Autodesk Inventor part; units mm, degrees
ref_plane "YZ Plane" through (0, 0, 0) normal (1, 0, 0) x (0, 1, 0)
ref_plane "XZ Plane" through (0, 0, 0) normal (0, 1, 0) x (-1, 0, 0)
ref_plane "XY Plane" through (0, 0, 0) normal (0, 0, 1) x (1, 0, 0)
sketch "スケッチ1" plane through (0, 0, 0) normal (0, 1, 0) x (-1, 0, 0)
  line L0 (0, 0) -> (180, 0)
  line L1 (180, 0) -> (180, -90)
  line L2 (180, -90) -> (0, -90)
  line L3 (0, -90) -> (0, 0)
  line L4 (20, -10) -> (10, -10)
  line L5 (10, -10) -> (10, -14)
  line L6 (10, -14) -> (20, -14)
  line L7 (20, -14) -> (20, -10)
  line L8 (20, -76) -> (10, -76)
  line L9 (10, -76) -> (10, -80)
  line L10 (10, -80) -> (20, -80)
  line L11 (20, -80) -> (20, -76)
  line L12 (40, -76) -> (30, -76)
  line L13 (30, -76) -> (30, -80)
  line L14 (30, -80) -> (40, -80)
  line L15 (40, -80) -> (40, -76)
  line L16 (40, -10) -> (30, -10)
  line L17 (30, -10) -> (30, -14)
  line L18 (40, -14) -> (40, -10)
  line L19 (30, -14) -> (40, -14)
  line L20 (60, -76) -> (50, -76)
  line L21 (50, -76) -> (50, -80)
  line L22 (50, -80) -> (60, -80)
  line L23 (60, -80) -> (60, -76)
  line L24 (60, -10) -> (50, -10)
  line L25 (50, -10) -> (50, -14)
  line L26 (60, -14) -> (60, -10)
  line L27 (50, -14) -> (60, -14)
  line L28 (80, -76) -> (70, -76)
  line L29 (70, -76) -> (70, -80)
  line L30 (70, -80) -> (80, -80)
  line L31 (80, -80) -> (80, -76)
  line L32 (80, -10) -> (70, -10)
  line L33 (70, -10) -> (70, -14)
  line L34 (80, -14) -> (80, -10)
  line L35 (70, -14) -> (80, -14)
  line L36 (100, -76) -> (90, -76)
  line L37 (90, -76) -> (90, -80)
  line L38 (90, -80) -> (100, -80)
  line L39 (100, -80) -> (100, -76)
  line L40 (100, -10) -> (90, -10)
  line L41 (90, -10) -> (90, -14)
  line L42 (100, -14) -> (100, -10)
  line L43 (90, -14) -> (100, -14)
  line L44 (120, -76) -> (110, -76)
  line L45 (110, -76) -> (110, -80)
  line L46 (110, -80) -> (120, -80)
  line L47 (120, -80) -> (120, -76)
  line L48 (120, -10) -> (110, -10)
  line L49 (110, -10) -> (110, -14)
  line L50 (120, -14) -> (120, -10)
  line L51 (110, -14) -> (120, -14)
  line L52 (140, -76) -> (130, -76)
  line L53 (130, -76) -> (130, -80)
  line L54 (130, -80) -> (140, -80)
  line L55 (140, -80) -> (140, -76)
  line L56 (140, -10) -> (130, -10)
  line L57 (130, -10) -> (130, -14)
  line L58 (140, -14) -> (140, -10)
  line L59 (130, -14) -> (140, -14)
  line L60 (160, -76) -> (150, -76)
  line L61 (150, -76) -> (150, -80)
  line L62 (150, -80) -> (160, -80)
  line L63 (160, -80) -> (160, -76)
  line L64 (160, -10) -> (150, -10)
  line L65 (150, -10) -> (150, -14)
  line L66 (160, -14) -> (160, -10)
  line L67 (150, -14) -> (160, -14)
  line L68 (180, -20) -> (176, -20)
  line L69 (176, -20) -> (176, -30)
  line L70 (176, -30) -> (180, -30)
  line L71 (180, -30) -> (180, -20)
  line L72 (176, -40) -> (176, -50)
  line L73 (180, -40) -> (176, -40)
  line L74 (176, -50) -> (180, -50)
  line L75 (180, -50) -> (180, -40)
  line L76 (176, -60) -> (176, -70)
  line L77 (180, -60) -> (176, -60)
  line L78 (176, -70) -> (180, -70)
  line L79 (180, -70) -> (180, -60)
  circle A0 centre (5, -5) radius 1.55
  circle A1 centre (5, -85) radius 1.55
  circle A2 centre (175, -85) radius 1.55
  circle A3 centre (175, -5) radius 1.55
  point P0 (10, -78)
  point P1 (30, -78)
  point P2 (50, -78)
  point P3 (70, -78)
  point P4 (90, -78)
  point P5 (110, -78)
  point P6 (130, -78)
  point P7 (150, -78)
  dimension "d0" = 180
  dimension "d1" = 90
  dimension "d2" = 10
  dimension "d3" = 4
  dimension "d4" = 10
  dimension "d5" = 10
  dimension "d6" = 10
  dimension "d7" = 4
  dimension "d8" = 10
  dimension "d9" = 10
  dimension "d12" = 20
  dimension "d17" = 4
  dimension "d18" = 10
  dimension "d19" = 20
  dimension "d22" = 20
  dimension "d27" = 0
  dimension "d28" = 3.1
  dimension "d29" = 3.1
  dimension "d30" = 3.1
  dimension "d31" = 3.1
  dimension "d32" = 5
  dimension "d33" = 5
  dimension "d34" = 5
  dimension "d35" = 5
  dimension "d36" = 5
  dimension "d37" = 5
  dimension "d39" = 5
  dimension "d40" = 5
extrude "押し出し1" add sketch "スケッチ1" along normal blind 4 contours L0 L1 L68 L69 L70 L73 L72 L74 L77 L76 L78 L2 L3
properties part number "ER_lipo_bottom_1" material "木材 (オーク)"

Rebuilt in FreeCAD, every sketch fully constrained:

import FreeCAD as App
import Part
import Sketcher

V = App.Vector

doc = App.newDocument("Part")
body = doc.addObject("PartDesign::Body", "Body")

# Sketch on XZ plane
sketch1 = body.newObject("Sketcher::SketchObject", "Sketch")
sketch1.AttachmentSupport = (doc.getObject("XZ_Plane"), [""])
sketch1.MapMode = "FlatFace"
sketch1.addGeometry([
    Part.LineSegment(V(-180, 0, 0), V(0, 0, 0)),  # 0
    Part.LineSegment(V(0, 0, 0), V(0, -90, 0)),  # 1
    Part.LineSegment(V(0, -90, 0), V(-180, -90, 0)),  # 2
    Part.LineSegment(V(-180, -90, 0), V(-180, -70, 0)),  # 3
    Part.LineSegment(V(-180, -70, 0), V(-176, -70, 0)),  # 4
    Part.LineSegment(V(-176, -70, 0), V(-176, -60, 0)),  # 5
    Part.LineSegment(V(-176, -60, 0), V(-180, -60, 0)),  # 6
    Part.LineSegment(V(-180, -60, 0), V(-180, -50, 0)),  # 7
    Part.LineSegment(V(-180, -50, 0), V(-176, -50, 0)),  # 8
    Part.LineSegment(V(-176, -50, 0), V(-176, -40, 0)),  # 9
    Part.LineSegment(V(-176, -40, 0), V(-180, -40, 0)),  # 10
    Part.LineSegment(V(-180, -40, 0), V(-180, -30, 0)),  # 11
    Part.LineSegment(V(-180, -30, 0), V(-176, -30, 0)),  # 12
    Part.LineSegment(V(-176, -30, 0), V(-176, -20, 0)),  # 13
    Part.LineSegment(V(-176, -20, 0), V(-180, -20, 0)),  # 14
    Part.LineSegment(V(-180, -20, 0), V(-180, 0, 0)),  # 15
    Part.Circle(V(-5, -85, 0), V(0, 0, 1), 1.55),  # 16
    Part.LineSegment(V(-10, -76, 0), V(-20, -76, 0)),  # 17
    Part.LineSegment(V(-20, -76, 0), V(-20, -80, 0)),  # 18
    Part.LineSegment(V(-20, -80, 0), V(-10, -80, 0)),  # 19
    Part.LineSegment(V(-10, -80, 0), V(-10, -76, 0)),  # 20
    Part.LineSegment(V(-30, -76, 0), V(-40, -76, 0)),  # 21
    Part.LineSegment(V(-40, -76, 0), V(-40, -80, 0)),  # 22
    Part.LineSegment(V(-40, -80, 0), V(-30, -80, 0)),  # 23
    Part.LineSegment(V(-30, -80, 0), V(-30, -76, 0)),  # 24
    Part.LineSegment(V(-50, -76, 0), V(-60, -76, 0)),  # 25
    Part.LineSegment(V(-60, -76, 0), V(-60, -80, 0)),  # 26
    Part.LineSegment(V(-60, -80, 0), V(-50, -80, 0)),  # 27
    Part.LineSegment(V(-50, -80, 0), V(-50, -76, 0)),  # 28
    Part.LineSegment(V(-70, -76, 0), V(-80, -76, 0)),  # 29
    Part.LineSegment(V(-80, -76, 0), V(-80, -80, 0)),  # 30
    Part.LineSegment(V(-80, -80, 0), V(-70, -80, 0)),  # 31
    Part.LineSegment(V(-70, -80, 0), V(-70, -76, 0)),  # 32
    Part.LineSegment(V(-90, -76, 0), V(-100, -76, 0)),  # 33
    Part.LineSegment(V(-100, -76, 0), V(-100, -80, 0)),  # 34
    Part.LineSegment(V(-100, -80, 0), V(-90, -80, 0)),  # 35
    Part.LineSegment(V(-90, -80, 0), V(-90, -76, 0)),  # 36
    Part.LineSegment(V(-110, -76, 0), V(-120, -76, 0)),  # 37
    Part.LineSegment(V(-120, -76, 0), V(-120, -80, 0)),  # 38
    Part.LineSegment(V(-120, -80, 0), V(-110, -80, 0)),  # 39
    Part.LineSegment(V(-110, -80, 0), V(-110, -76, 0)),  # 40
    Part.Circle(V(-175, -85, 0), V(0, 0, 1), 1.55),  # 41
    Part.LineSegment(V(-130, -76, 0), V(-140, -76, 0)),  # 42
    Part.LineSegment(V(-140, -76, 0), V(-140, -80, 0)),  # 43
    Part.LineSegment(V(-140, -80, 0), V(-130, -80, 0)),  # 44
    Part.LineSegment(V(-130, -80, 0), V(-130, -76, 0)),  # 45
    Part.LineSegment(V(-150, -76, 0), V(-160, -76, 0)),  # 46
    Part.LineSegment(V(-160, -76, 0), V(-160, -80, 0)),  # 47
    Part.LineSegment(V(-160, -80, 0), V(-150, -80, 0)),  # 48
    Part.LineSegment(V(-150, -80, 0), V(-150, -76, 0)),  # 49
    Part.LineSegment(V(-10, -10, 0), V(-20, -10, 0)),  # 50
    Part.LineSegment(V(-20, -10, 0), V(-20, -14, 0)),  # 51
    Part.LineSegment(V(-20, -14, 0), V(-10, -14, 0)),  # 52
    Part.LineSegment(V(-10, -14, 0), V(-10, -10, 0)),  # 53
    Part.LineSegment(V(-30, -10, 0), V(-40, -10, 0)),  # 54
    Part.LineSegment(V(-40, -10, 0), V(-40, -14, 0)),  # 55
    Part.LineSegment(V(-40, -14, 0), V(-30, -14, 0)),  # 56
    Part.LineSegment(V(-30, -14, 0), V(-30, -10, 0)),  # 57
    Part.Circle(V(-5, -5, 0), V(0, 0, 1), 1.55),  # 58
    Part.LineSegment(V(-50, -10, 0), V(-60, -10, 0)),  # 59
    Part.LineSegment(V(-60, -10, 0), V(-60, -14, 0)),  # 60
    Part.LineSegment(V(-60, -14, 0), V(-50, -14, 0)),  # 61
    Part.LineSegment(V(-50, -14, 0), V(-50, -10, 0)),  # 62
    Part.LineSegment(V(-70, -10, 0), V(-80, -10, 0)),  # 63
    Part.LineSegment(V(-80, -10, 0), V(-80, -14, 0)),  # 64
    Part.LineSegment(V(-80, -14, 0), V(-70, -14, 0)),  # 65
    Part.LineSegment(V(-70, -14, 0), V(-70, -10, 0)),  # 66
    Part.LineSegment(V(-90, -10, 0), V(-100, -10, 0)),  # 67
    Part.LineSegment(V(-100, -10, 0), V(-100, -14, 0)),  # 68
    Part.LineSegment(V(-100, -14, 0), V(-90, -14, 0)),  # 69
    Part.LineSegment(V(-90, -14, 0), V(-90, -10, 0)),  # 70
    Part.LineSegment(V(-110, -10, 0), V(-120, -10, 0)),  # 71
    Part.LineSegment(V(-120, -10, 0), V(-120, -14, 0)),  # 72
    Part.LineSegment(V(-120, -14, 0), V(-110, -14, 0)),  # 73
    Part.LineSegment(V(-110, -14, 0), V(-110, -10, 0)),  # 74
    Part.LineSegment(V(-130, -10, 0), V(-140, -10, 0)),  # 75
    Part.LineSegment(V(-140, -10, 0), V(-140, -14, 0)),  # 76
    Part.LineSegment(V(-140, -14, 0), V(-130, -14, 0)),  # 77
    Part.LineSegment(V(-130, -14, 0), V(-130, -10, 0)),  # 78
    Part.LineSegment(V(-150, -10, 0), V(-160, -10, 0)),  # 79
    Part.LineSegment(V(-160, -10, 0), V(-160, -14, 0)),  # 80
    Part.LineSegment(V(-160, -14, 0), V(-150, -14, 0)),  # 81
    Part.LineSegment(V(-150, -14, 0), V(-150, -10, 0)),  # 82
    Part.Circle(V(-175, -5, 0), V(0, 0, 1), 1.55),  # 83
], False)
sketch1.addConstraint([
    Sketcher.Constraint("Coincident", 0, 2, 1, 1),
    Sketcher.Constraint("Coincident", 1, 2, 2, 1),
    Sketcher.Constraint("Coincident", 2, 2, 3, 1),
    Sketcher.Constraint("Coincident", 3, 2, 4, 1),
    Sketcher.Constraint("Coincident", 4, 2, 5, 1),
    Sketcher.Constraint("Coincident", 5, 2, 6, 1),
    Sketcher.Constraint("Coincident", 6, 2, 7, 1),
    Sketcher.Constraint("Coincident", 7, 2, 8, 1),
    Sketcher.Constraint("Coincident", 8, 2, 9, 1),
    Sketcher.Constraint("Coincident", 9, 2, 10, 1),
    Sketcher.Constraint("Coincident", 10, 2, 11, 1),
    Sketcher.Constraint("Coincident", 11, 2, 12, 1),
    Sketcher.Constraint("Coincident", 12, 2, 13, 1),
    Sketcher.Constraint("Coincident", 13, 2, 14, 1),
    Sketcher.Constraint("Coincident", 14, 2, 15, 1),
    Sketcher.Constraint("Coincident", 15, 2, 0, 1),
    Sketcher.Constraint("Coincident", 17, 2, 18, 1),
    Sketcher.Constraint("Coincident", 18, 2, 19, 1),
    Sketcher.Constraint("Coincident", 19, 2, 20, 1),
    Sketcher.Constraint("Coincident", 20, 2, 17, 1),
    Sketcher.Constraint("Coincident", 21, 2, 22, 1),
    Sketcher.Constraint("Coincident", 22, 2, 23, 1),
    Sketcher.Constraint("Coincident", 23, 2, 24, 1),
    Sketcher.Constraint("Coincident", 24, 2, 21, 1),
    Sketcher.Constraint("Coincident", 25, 2, 26, 1),
    Sketcher.Constraint("Coincident", 26, 2, 27, 1),
    Sketcher.Constraint("Coincident", 27, 2, 28, 1),
    Sketcher.Constraint("Coincident", 28, 2, 25, 1),
    Sketcher.Constraint("Coincident", 29, 2, 30, 1),
    Sketcher.Constraint("Coincident", 30, 2, 31, 1),
    Sketcher.Constraint("Coincident", 31, 2, 32, 1),
    Sketcher.Constraint("Coincident", 32, 2, 29, 1),
    Sketcher.Constraint("Coincident", 33, 2, 34, 1),
    Sketcher.Constraint("Coincident", 34, 2, 35, 1),
    Sketcher.Constraint("Coincident", 35, 2, 36, 1),
    Sketcher.Constraint("Coincident", 36, 2, 33, 1),
    Sketcher.Constraint("Coincident", 37, 2, 38, 1),
    Sketcher.Constraint("Coincident", 38, 2, 39, 1),
    Sketcher.Constraint("Coincident", 39, 2, 40, 1),
    Sketcher.Constraint("Coincident", 40, 2, 37, 1),
    Sketcher.Constraint("Coincident", 42, 2, 43, 1),
    Sketcher.Constraint("Coincident", 43, 2, 44, 1),
    Sketcher.Constraint("Coincident", 44, 2, 45, 1),
    Sketcher.Constraint("Coincident", 45, 2, 42, 1),
    Sketcher.Constraint("Coincident", 46, 2, 47, 1),
    Sketcher.Constraint("Coincident", 47, 2, 48, 1),
    Sketcher.Constraint("Coincident", 48, 2, 49, 1),
    Sketcher.Constraint("Coincident", 49, 2, 46, 1),
    Sketcher.Constraint("Coincident", 50, 2, 51, 1),
    Sketcher.Constraint("Coincident", 51, 2, 52, 1),
    Sketcher.Constraint("Coincident", 52, 2, 53, 1),
    Sketcher.Constraint("Coincident", 53, 2, 50, 1),
    Sketcher.Constraint("Coincident", 54, 2, 55, 1),
    Sketcher.Constraint("Coincident", 55, 2, 56, 1),
    Sketcher.Constraint("Coincident", 56, 2, 57, 1),
    Sketcher.Constraint("Coincident", 57, 2, 54, 1),
    Sketcher.Constraint("Coincident", 59, 2, 60, 1),
    Sketcher.Constraint("Coincident", 60, 2, 61, 1),
    Sketcher.Constraint("Coincident", 61, 2, 62, 1),
    Sketcher.Constraint("Coincident", 62, 2, 59, 1),
    Sketcher.Constraint("Coincident", 63, 2, 64, 1),
    Sketcher.Constraint("Coincident", 64, 2, 65, 1),
    Sketcher.Constraint("Coincident", 65, 2, 66, 1),
    Sketcher.Constraint("Coincident", 66, 2, 63, 1),
    Sketcher.Constraint("Coincident", 67, 2, 68, 1),
    Sketcher.Constraint("Coincident", 68, 2, 69, 1),
    Sketcher.Constraint("Coincident", 69, 2, 70, 1),
    Sketcher.Constraint("Coincident", 70, 2, 67, 1),
    Sketcher.Constraint("Coincident", 71, 2, 72, 1),
    Sketcher.Constraint("Coincident", 72, 2, 73, 1),
    Sketcher.Constraint("Coincident", 73, 2, 74, 1),
    Sketcher.Constraint("Coincident", 74, 2, 71, 1),
    Sketcher.Constraint("Coincident", 75, 2, 76, 1),
    Sketcher.Constraint("Coincident", 76, 2, 77, 1),
    Sketcher.Constraint("Coincident", 77, 2, 78, 1),
    Sketcher.Constraint("Coincident", 78, 2, 75, 1),
    Sketcher.Constraint("Coincident", 79, 2, 80, 1),
    Sketcher.Constraint("Coincident", 80, 2, 81, 1),
    Sketcher.Constraint("Coincident", 81, 2, 82, 1),
    Sketcher.Constraint("Coincident", 82, 2, 79, 1),
    Sketcher.Constraint("Horizontal", 0),
    Sketcher.Constraint("Vertical", 1),
    Sketcher.Constraint("Horizontal", 2),
    Sketcher.Constraint("Vertical", 3),
    Sketcher.Constraint("Horizontal", 4),
    Sketcher.Constraint("Vertical", 5),
    Sketcher.Constraint("Horizontal", 6),
    Sketcher.Constraint("Vertical", 7),
    Sketcher.Constraint("Horizontal", 8),
    Sketcher.Constraint("Vertical", 9),
    Sketcher.Constraint("Horizontal", 10),
    Sketcher.Constraint("Vertical", 11),
    Sketcher.Constraint("Horizontal", 12),
    Sketcher.Constraint("Vertical", 13),
    Sketcher.Constraint("Horizontal", 14),
    Sketcher.Constraint("Vertical", 15),
    Sketcher.Constraint("Horizontal", 17),
    Sketcher.Constraint("Vertical", 18),
    Sketcher.Constraint("Horizontal", 19),
    Sketcher.Constraint("Vertical", 20),
    Sketcher.Constraint("Horizontal", 21),
    Sketcher.Constraint("Vertical", 22),
    Sketcher.Constraint("Horizontal", 23),
    Sketcher.Constraint("Vertical", 24),
    Sketcher.Constraint("Horizontal", 25),
    Sketcher.Constraint("Vertical", 26),
    Sketcher.Constraint("Horizontal", 27),
    Sketcher.Constraint("Vertical", 28),
    Sketcher.Constraint("Horizontal", 29),
    Sketcher.Constraint("Vertical", 30),
    Sketcher.Constraint("Horizontal", 31),
    Sketcher.Constraint("Vertical", 32),
    Sketcher.Constraint("Horizontal", 33),
    Sketcher.Constraint("Vertical", 34),
    Sketcher.Constraint("Horizontal", 35),
    Sketcher.Constraint("Vertical", 36),
    Sketcher.Constraint("Horizontal", 37),
    Sketcher.Constraint("Vertical", 38),
    Sketcher.Constraint("Horizontal", 39),
    Sketcher.Constraint("Vertical", 40),
    Sketcher.Constraint("Horizontal", 42),
    Sketcher.Constraint("Vertical", 43),
    Sketcher.Constraint("Horizontal", 44),
    Sketcher.Constraint("Vertical", 45),
    Sketcher.Constraint("Horizontal", 46),
    Sketcher.Constraint("Vertical", 47),
    Sketcher.Constraint("Horizontal", 48),
    Sketcher.Constraint("Vertical", 49),
    Sketcher.Constraint("Horizontal", 50),
    Sketcher.Constraint("Vertical", 51),
    Sketcher.Constraint("Horizontal", 52),
    Sketcher.Constraint("Vertical", 53),
    Sketcher.Constraint("Horizontal", 54),
    Sketcher.Constraint("Vertical", 55),
    Sketcher.Constraint("Horizontal", 56),
    Sketcher.Constraint("Vertical", 57),
    Sketcher.Constraint("Horizontal", 59),
    Sketcher.Constraint("Vertical", 60),
    Sketcher.Constraint("Horizontal", 61),
    Sketcher.Constraint("Vertical", 62),
    Sketcher.Constraint("Horizontal", 63),
    Sketcher.Constraint("Vertical", 64),
    Sketcher.Constraint("Horizontal", 65),
    Sketcher.Constraint("Vertical", 66),
    Sketcher.Constraint("Horizontal", 67),
    Sketcher.Constraint("Vertical", 68),
    Sketcher.Constraint("Horizontal", 69),
    Sketcher.Constraint("Vertical", 70),
    Sketcher.Constraint("Horizontal", 71),
    Sketcher.Constraint("Vertical", 72),
    Sketcher.Constraint("Horizontal", 73),
    Sketcher.Constraint("Vertical", 74),
    Sketcher.Constraint("Horizontal", 75),
    Sketcher.Constraint("Vertical", 76),
    Sketcher.Constraint("Horizontal", 77),
    Sketcher.Constraint("Vertical", 78),
    Sketcher.Constraint("Horizontal", 79),
    Sketcher.Constraint("Vertical", 80),
    Sketcher.Constraint("Horizontal", 81),
    Sketcher.Constraint("Vertical", 82),
    Sketcher.Constraint("Coincident", 0, 2, -1, 1),
    Sketcher.Constraint("Equal", 16, 41),
    Sketcher.Constraint("Equal", 41, 58),
    Sketcher.Constraint("Equal", 58, 83),
    Sketcher.Constraint("Horizontal", 16, 3, 41, 3),
    Sketcher.Constraint("Horizontal", 58, 3, 83, 3),
    Sketcher.Constraint("Horizontal", 20, 2, 21, 2),
    Sketcher.Constraint("Horizontal", 19, 2, 22, 2),
    Sketcher.Constraint("Horizontal", 24, 2, 25, 2),
    Sketcher.Constraint("Horizontal", 23, 2, 26, 2),
    Sketcher.Constraint("Horizontal", 28, 2, 29, 2),
    Sketcher.Constraint("Horizontal", 27, 2, 30, 2),
    Sketcher.Constraint("Horizontal", 32, 2, 33, 2),
    Sketcher.Constraint("Horizontal", 31, 2, 34, 2),
    Sketcher.Constraint("Horizontal", 36, 2, 37, 2),
    Sketcher.Constraint("Horizontal", 35, 2, 38, 2),
    Sketcher.Constraint("Horizontal", 40, 2, 42, 2),
    Sketcher.Constraint("Horizontal", 39, 2, 43, 2),
    Sketcher.Constraint("Horizontal", 45, 2, 46, 2),
    Sketcher.Constraint("Horizontal", 44, 2, 47, 2),
    Sketcher.Constraint("Horizontal", 53, 2, 54, 2),
    Sketcher.Constraint("Horizontal", 52, 2, 55, 2),
    Sketcher.Constraint("Horizontal", 57, 2, 59, 2),
    Sketcher.Constraint("Horizontal", 56, 2, 60, 2),
    Sketcher.Constraint("Horizontal", 62, 2, 63, 2),
    Sketcher.Constraint("Horizontal", 61, 2, 64, 2),
    Sketcher.Constraint("Horizontal", 66, 2, 67, 2),
    Sketcher.Constraint("Horizontal", 65, 2, 68, 2),
    Sketcher.Constraint("Horizontal", 70, 2, 71, 2),
    Sketcher.Constraint("Horizontal", 69, 2, 72, 2),
    Sketcher.Constraint("Horizontal", 74, 2, 75, 2),
    Sketcher.Constraint("Horizontal", 73, 2, 76, 2),
    Sketcher.Constraint("Horizontal", 78, 2, 79, 2),
    Sketcher.Constraint("Horizontal", 77, 2, 80, 2),
    Sketcher.Constraint("Vertical", 16, 3, 58, 3),
    Sketcher.Constraint("Vertical", 41, 3, 83, 3),
    Sketcher.Constraint("Vertical", 3, 2, 6, 2),
    Sketcher.Constraint("Vertical", 5, 2, 8, 2),
    Sketcher.Constraint("Vertical", 7, 2, 10, 2),
    Sketcher.Constraint("Vertical", 9, 2, 12, 2),
    Sketcher.Constraint("Vertical", 11, 2, 14, 2),
    Sketcher.Constraint("Vertical", 18, 2, 50, 2),
    Sketcher.Constraint("Vertical", 20, 2, 52, 2),
    Sketcher.Constraint("Vertical", 22, 2, 54, 2),
    Sketcher.Constraint("Vertical", 24, 2, 56, 2),
    Sketcher.Constraint("Vertical", 26, 2, 59, 2),
    Sketcher.Constraint("Vertical", 28, 2, 61, 2),
    Sketcher.Constraint("Vertical", 30, 2, 63, 2),
    Sketcher.Constraint("Vertical", 32, 2, 65, 2),
    Sketcher.Constraint("Vertical", 34, 2, 67, 2),
    Sketcher.Constraint("Vertical", 36, 2, 69, 2),
    Sketcher.Constraint("Vertical", 38, 2, 71, 2),
    Sketcher.Constraint("Vertical", 40, 2, 73, 2),
    Sketcher.Constraint("Vertical", 43, 2, 75, 2),
    Sketcher.Constraint("Vertical", 45, 2, 77, 2),
    Sketcher.Constraint("Vertical", 47, 2, 79, 2),
    Sketcher.Constraint("Vertical", 49, 2, 81, 2),
    Sketcher.Constraint("Equal", 19, 21),
    Sketcher.Constraint("Equal", 23, 25),
    Sketcher.Constraint("Equal", 27, 29),
    Sketcher.Constraint("Equal", 31, 33),
    Sketcher.Constraint("Equal", 35, 37),
    Sketcher.Constraint("Equal", 39, 42),
    Sketcher.Constraint("Equal", 44, 46),
    Sketcher.Constraint("Equal", 81, 5),
    Sketcher.Constraint("Equal", 5, 7),
    Sketcher.Constraint("Equal", 7, 9),
    Sketcher.Constraint("Equal", 9, 11),
    Sketcher.Constraint("Equal", 11, 13),
    Sketcher.Constraint("Equal", 3, 15),
    Sketcher.Constraint("Equal", 14, 18),
    Sketcher.Constraint("Equal", 49, 51),
    Sketcher.Constraint("Diameter", 16, 3.1),
    Sketcher.Constraint("DistanceX", 0, 1, 0, 2, 180.0),
    Sketcher.Constraint("DistanceX", 4, 1, 4, 2, 4.0),
    Sketcher.Constraint("DistanceX", 17, 2, 17, 1, 10.0),
    Sketcher.Constraint("DistanceY", 1, 2, 1, 1, 90.0),
    Sketcher.Constraint("DistanceX", 16, 3, -1, 1, 5.0),
    Sketcher.Constraint("DistanceY", 58, 3, -1, 1, 5.0),
    Sketcher.Constraint("DistanceX", 17, 2, -1, 1, 20.0),
    Sketcher.Constraint("DistanceX", 35, 2, -1, 1, 90.0),
    Sketcher.Constraint("DistanceY", 50, 2, -1, 1, 10.0),
    Sketcher.Constraint("DistanceY", 16, 3, -1, 1, 85.0),
    Sketcher.Constraint("DistanceX", 41, 3, -1, 1, 175.0),
    Sketcher.Constraint("DistanceY", 17, 2, -1, 1, 76.0),
    Sketcher.Constraint("DistanceX", 21, 2, -1, 1, 40.0),
    Sketcher.Constraint("DistanceX", 25, 2, -1, 1, 60.0),
    Sketcher.Constraint("DistanceX", 29, 2, -1, 1, 80.0),
    Sketcher.Constraint("DistanceX", 37, 2, -1, 1, 120.0),
    Sketcher.Constraint("DistanceX", 42, 2, -1, 1, 140.0),
    Sketcher.Constraint("DistanceX", 46, 2, -1, 1, 160.0),
])
pad1 = body.newObject("PartDesign::Pad", "Pad")
pad1.Profile = sketch1
pad1.Length = 4
pad1.Reversed = True

doc.recompute()
